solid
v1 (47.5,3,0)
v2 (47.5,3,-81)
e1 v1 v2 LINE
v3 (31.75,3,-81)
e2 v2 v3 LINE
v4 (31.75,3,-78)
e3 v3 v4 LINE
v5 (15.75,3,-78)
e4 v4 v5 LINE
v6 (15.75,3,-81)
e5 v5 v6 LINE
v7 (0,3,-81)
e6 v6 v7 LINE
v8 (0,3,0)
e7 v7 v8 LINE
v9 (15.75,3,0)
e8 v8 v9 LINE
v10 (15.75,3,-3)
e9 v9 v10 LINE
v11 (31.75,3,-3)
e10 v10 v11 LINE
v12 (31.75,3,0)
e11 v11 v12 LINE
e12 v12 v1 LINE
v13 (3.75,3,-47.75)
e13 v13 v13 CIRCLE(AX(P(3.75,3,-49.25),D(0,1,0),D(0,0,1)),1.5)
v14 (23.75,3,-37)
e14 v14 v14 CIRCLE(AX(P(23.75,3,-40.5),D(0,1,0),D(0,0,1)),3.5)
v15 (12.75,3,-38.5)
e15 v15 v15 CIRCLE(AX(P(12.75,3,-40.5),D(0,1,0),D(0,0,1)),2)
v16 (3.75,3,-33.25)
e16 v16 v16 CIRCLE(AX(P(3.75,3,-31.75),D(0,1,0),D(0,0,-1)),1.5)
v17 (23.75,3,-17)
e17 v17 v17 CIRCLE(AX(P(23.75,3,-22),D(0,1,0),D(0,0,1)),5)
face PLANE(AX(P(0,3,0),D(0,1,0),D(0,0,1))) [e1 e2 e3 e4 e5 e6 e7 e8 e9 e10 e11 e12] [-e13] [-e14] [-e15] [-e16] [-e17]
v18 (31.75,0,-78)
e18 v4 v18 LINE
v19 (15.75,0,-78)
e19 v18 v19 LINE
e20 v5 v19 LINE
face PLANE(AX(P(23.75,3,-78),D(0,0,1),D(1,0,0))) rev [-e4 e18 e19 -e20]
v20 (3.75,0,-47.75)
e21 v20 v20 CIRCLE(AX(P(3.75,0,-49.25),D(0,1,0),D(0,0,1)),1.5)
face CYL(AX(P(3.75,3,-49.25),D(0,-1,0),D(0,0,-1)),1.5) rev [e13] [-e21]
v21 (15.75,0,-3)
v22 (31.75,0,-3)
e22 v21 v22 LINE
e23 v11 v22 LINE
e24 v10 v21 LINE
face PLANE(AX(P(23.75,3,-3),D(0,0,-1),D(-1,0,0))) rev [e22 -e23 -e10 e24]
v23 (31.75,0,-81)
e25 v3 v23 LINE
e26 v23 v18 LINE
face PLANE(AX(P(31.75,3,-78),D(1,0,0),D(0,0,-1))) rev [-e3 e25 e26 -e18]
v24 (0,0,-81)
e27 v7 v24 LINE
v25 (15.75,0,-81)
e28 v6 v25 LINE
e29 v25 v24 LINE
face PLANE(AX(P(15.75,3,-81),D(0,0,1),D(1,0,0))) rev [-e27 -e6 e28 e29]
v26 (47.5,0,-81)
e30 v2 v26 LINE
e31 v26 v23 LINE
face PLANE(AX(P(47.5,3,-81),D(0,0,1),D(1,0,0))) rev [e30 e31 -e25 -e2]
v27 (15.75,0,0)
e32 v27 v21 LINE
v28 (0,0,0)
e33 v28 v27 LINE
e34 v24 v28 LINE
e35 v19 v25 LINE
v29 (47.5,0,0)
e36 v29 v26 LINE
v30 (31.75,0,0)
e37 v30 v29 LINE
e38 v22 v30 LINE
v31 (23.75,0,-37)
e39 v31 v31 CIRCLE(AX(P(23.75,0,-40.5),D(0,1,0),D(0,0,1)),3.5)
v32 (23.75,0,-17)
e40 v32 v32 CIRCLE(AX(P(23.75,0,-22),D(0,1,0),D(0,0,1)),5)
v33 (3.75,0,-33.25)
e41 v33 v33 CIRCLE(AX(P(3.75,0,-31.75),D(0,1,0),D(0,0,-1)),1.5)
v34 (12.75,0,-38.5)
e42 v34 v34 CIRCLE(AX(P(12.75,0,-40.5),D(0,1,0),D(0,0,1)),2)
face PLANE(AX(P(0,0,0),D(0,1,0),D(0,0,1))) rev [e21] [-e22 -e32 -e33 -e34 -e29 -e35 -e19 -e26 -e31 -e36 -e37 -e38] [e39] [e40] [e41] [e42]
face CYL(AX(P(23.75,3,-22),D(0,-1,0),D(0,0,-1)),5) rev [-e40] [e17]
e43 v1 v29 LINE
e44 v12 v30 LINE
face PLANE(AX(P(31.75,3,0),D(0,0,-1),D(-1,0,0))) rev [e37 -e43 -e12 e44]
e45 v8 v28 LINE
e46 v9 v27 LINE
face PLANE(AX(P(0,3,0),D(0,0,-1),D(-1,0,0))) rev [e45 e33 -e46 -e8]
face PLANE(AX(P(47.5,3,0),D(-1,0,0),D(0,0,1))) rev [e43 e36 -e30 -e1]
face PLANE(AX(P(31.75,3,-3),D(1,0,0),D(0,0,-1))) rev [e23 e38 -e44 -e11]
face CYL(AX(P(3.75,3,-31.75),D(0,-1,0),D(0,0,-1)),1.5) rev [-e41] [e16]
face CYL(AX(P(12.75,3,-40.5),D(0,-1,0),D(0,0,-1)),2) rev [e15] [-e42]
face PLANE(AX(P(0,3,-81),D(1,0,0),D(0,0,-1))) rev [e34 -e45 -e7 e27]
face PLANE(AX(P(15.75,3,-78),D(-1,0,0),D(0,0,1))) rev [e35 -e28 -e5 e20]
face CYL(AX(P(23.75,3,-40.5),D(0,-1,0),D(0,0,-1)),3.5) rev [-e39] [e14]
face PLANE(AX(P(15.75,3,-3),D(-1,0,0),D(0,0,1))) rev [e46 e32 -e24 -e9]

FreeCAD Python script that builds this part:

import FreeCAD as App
import Part
import Sketcher
from FreeCAD import Vector

doc = App.newDocument("Part")
body = doc.addObject("PartDesign::Body", "Body")

# Sketch on XZ plane
sketch1 = doc.addObject("Sketcher::SketchObject", "Sketch")
body.addObject(sketch1)
sketch1.AttachmentSupport = (doc.XZ_Plane, [""])
sketch1.MapMode = "FlatFace"
sketch1.addGeometry([
    Part.LineSegment(Vector(0, 0, 0), Vector(15.8, 0, 0)),  # 0
    Part.LineSegment(Vector(15.8, 0, 0), Vector(15.8, -3, 0)),  # 1
    Part.LineSegment(Vector(15.8, -3, 0), Vector(31.8, -3, 0)),  # 2
    Part.LineSegment(Vector(31.8, -3, 0), Vector(31.8, 0, 0)),  # 3
    Part.LineSegment(Vector(31.8, 0, 0), Vector(47.5, 0, 0)),  # 4
    Part.LineSegment(Vector(47.5, 0, 0), Vector(47.5, -81, 0)),  # 5
    Part.LineSegment(Vector(47.5, -81, 0), Vector(31.8, -81, 0)),  # 6
    Part.LineSegment(Vector(31.8, -81, 0), Vector(31.8, -78, 0)),  # 7
    Part.LineSegment(Vector(31.8, -78, 0), Vector(15.8, -78, 0)),  # 8
    Part.LineSegment(Vector(15.8, -78, 0), Vector(15.8, -81, 0)),  # 9
    Part.LineSegment(Vector(15.8, -81, 0), Vector(0, -81, 0)),  # 10
    Part.LineSegment(Vector(0, -81, 0), Vector(0, 0, 0)),  # 11
    Part.Circle(Vector(3.8, -31.8, 0), Vector(0, 0, 1), 1.5),  # 12
    Part.Circle(Vector(23.8, -22, 0), Vector(0, 0, 1), 5),  # 13
    Part.Circle(Vector(12.8, -40.5, 0), Vector(0, 0, 1), 2),  # 14
    Part.Circle(Vector(3.8, -49.2, 0), Vector(0, 0, 1), 1.5),  # 15
    Part.Circle(Vector(23.8, -40.5, 0), Vector(0, 0, 1), 3.5),  # 16
], False)
sketch1.addConstraint([
    Sketcher.Constraint("Coincident", 0, 2, 1, 1),
    Sketcher.Constraint("Coincident", 1, 2, 2, 1),
    Sketcher.Constraint("Coincident", 2, 2, 3, 1),
    Sketcher.Constraint("Coincident", 3, 2, 4, 1),
    Sketcher.Constraint("Coincident", 4, 2, 5, 1),
    Sketcher.Constraint("Coincident", 5, 2, 6, 1),
    Sketcher.Constraint("Coincident", 6, 2, 7, 1),
    Sketcher.Constraint("Coincident", 7, 2, 8, 1),
    Sketcher.Constraint("Coincident", 8, 2, 9, 1),
    Sketcher.Constraint("Coincident", 9, 2, 10, 1),
    Sketcher.Constraint("Coincident", 10, 2, 11, 1),
    Sketcher.Constraint("Coincident", 11, 2, 0, 1),
    Sketcher.Constraint("Horizontal", 0),
    Sketcher.Constraint("Vertical", 1),
    Sketcher.Constraint("Horizontal", 2),
    Sketcher.Constraint("Vertical", 3),
    Sketcher.Constraint("Horizontal", 4),
    Sketcher.Constraint("Vertical", 5),
    Sketcher.Constraint("Horizontal", 6),
    Sketcher.Constraint("Vertical", 7),
    Sketcher.Constraint("Horizontal", 8),
    Sketcher.Constraint("Vertical", 9),
    Sketcher.Constraint("Horizontal", 10),
    Sketcher.Constraint("Vertical", 11),
    Sketcher.Constraint("Coincident", 11, 2, -1, 1),
    Sketcher.Constraint("Equal", 12, 15),
    Sketcher.Constraint("PointOnObject", 3, 2, -1),
    Sketcher.Constraint("Horizontal", 14, 3, 16, 3),
    Sketcher.Constraint("Horizontal", 6, 2, 9, 2),
    Sketcher.Constraint("Vertical", 12, 3, 15, 3),
    Sketcher.Constraint("Vertical", 13, 3, 16, 3),
    Sketcher.Constraint("Vertical", 3, 2, 6, 2),
    Sketcher.Constraint("Vertical", 1, 2, 8, 2),
    Sketcher.Constraint("Equal", 0, 4),
    Sketcher.Constraint("Equal", 3, 7),
    Sketcher.Constraint("Diameter", 12, 3.0),
    Sketcher.Constraint("Diameter", 13, 10.0),
    Sketcher.Constraint("Diameter", 14, 4.0),
    Sketcher.Constraint("Diameter", 16, 7.0),
    Sketcher.Constraint("DistanceX", 2, 1, 2, 2, 16.0),
    Sketcher.Constraint("DistanceY", 1, 2, 1, 1, 3.0),
    Sketcher.Constraint("DistanceY", 5, 2, 5, 1, 81.0),
    Sketcher.Constraint("DistanceY", 13, 3, -1, 1, 22.0),
    Sketcher.Constraint("DistanceX", 12, 3, 13, 3, 20.0),
    Sketcher.Constraint("DistanceX", 12, 3, 14, 3, 9.0),
    Sketcher.Constraint("DistanceX", 0, 2, 13, 3, 8.0),
    Sketcher.Constraint("DistanceX", 0, 1, 0, 2, 15.75),
    Sketcher.Constraint("DistanceY", 14, 3, -1, 1, 40.5),
    Sketcher.Constraint("DistanceY", 15, 3, 12, 3, 17.5),
    Sketcher.Constraint("DistanceY", 12, 3, -1, 1, 31.75),
])
pad1 = doc.addObject("PartDesign::Pad", "Pad")
body.addObject(pad1)
pad1.Profile = sketch1
pad1.Length = 3
pad1.Reversed = True

doc.recompute()
